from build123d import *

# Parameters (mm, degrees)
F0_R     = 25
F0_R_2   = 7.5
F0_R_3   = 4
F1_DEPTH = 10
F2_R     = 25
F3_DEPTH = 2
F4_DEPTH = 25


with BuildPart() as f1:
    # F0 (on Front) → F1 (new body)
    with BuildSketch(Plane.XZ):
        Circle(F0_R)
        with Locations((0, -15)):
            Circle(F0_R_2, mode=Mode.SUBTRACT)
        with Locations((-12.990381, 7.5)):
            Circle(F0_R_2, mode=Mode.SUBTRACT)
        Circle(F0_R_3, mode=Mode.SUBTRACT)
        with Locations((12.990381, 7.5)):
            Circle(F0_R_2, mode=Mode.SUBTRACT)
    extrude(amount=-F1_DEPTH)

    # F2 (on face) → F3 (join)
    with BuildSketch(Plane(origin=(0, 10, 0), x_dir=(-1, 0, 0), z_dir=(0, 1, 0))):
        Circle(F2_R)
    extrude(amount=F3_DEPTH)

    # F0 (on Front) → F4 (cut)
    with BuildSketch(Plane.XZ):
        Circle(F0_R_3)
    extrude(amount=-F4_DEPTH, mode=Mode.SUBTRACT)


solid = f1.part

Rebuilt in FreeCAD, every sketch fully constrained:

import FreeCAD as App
import Part
import Sketcher

doc = App.newDocument("Part")
body = doc.addObject("PartDesign::Body", "Body")

# Sketch on XZ plane
sketch1 = body.newObject("Sketcher::SketchObject", "Sketch")
sketch1.AttachmentSupport = (doc.getObject("XZ_Plane"), [""])
sketch1.MapMode = "FlatFace"
sketch1.addGeometry([
    Part.Circle(App.Vector(0, 0, 0), App.Vector(0, 0, 1), 25),  # 0
    Part.Circle(App.Vector(0, -15, 0), App.Vector(0, 0, 1), 7.5),  # 1
    Part.Circle(App.Vector(0, 0, 0), App.Vector(0, 0, 1), 4),  # 2
    Part.Circle(App.Vector(-13, 7.5, 0), App.Vector(0, 0, 1), 7.5),  # 3
    Part.Circle(App.Vector(13, 7.5, 0), App.Vector(0, 0, 1), 7.5),  # 4
], False)
sketch1.addConstraint([
    Sketcher.Constraint("Coincident", 0, 3, -1, 1),
    Sketcher.Constraint("Coincident", 2, 3, -1, 1),
    Sketcher.Constraint("Equal", 1, 3),
    Sketcher.Constraint("Equal", 3, 4),
    Sketcher.Constraint("Symmetric", 3, 3, 4, 3, -2),
    Sketcher.Constraint("PointOnObject", 1, 3, -2),
    Sketcher.Constraint("Diameter", 0, 50.0),
    Sketcher.Constraint("Diameter", 1, 15.0),
    Sketcher.Constraint("Diameter", 2, 8.0),
    Sketcher.Constraint("DistanceY", 1, 3, -1, 1, 15.0),
    Sketcher.Constraint("DistanceY", -1, 1, 3, 3, 7.5),
    Sketcher.Constraint("DistanceX", 3, 3, -1, 1, 12.990381),
])
pad1 = body.newObject("PartDesign::Pad", "Pad")
pad1.Profile = sketch1
pad1.Length = 10
pad1.Reversed = True

# Sketch on XZ plane
sketch2 = body.newObject("Sketcher::SketchObject", "Sketch001")
sketch2.AttachmentSupport = (doc.getObject("XZ_Plane"), [""])
sketch2.MapMode = "FlatFace"
sketch2.AttachmentOffset = App.Placement(App.Vector(0, 0, -10), App.Rotation())
sketch2.addGeometry(Part.Circle(App.Vector(0, 0, 0), App.Vector(0, 0, 1), 25), False)
sketch2.addConstraint([
    Sketcher.Constraint("Coincident", 0, 3, -1, 1),
    Sketcher.Constraint("Diameter", 0, 50.0),
])
pad2 = body.newObject("PartDesign::Pad", "Pad001")
pad2.Profile = sketch2
pad2.Length = 2
pad2.Reversed = True

# Sketch on XZ plane
sketch3 = body.newObject("Sketcher::SketchObject", "Sketch002")
sketch3.AttachmentSupport = (doc.getObject("XZ_Plane"), [""])
sketch3.MapMode = "FlatFace"
sketch3.addGeometry(Part.Circle(App.Vector(0, 0, 0), App.Vector(0, 0, 1), 4), False)
sketch3.addConstraint([
    Sketcher.Constraint("Coincident", 0, 3, -1, 1),
    Sketcher.Constraint("Diameter", 0, 8.0),
])
pocket1 = body.newObject("PartDesign::Pocket", "Pocket")
pocket1.Profile = sketch3
pocket1.Length = 25

doc.recompute()
